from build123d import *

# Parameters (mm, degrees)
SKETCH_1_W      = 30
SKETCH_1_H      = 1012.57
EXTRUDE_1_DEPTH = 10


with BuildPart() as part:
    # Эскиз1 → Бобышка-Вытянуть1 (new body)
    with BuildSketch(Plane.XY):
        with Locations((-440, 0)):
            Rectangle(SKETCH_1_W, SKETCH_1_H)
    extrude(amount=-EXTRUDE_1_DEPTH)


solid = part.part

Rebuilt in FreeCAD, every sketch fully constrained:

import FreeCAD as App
import Part
import Sketcher

doc = App.newDocument("Part")
body = doc.addObject("PartDesign::Body", "Body")

# Sketch on XY plane
sketch1 = body.newObject("Sketcher::SketchObject", "Sketch")
sketch1.AttachmentSupport = (doc.getObject("XY_Plane"), [""])
sketch1.MapMode = "FlatFace"
sketch1.addGeometry([
    Part.LineSegment(App.Vector(-455, 506, 0), App.Vector(-455, -506, 0)),
    Part.LineSegment(App.Vector(-455, -506, 0), App.Vector(-425, -506, 0)),
    Part.LineSegment(App.Vector(-425, -506, 0), App.Vector(-425, 506, 0)),
    Part.LineSegment(App.Vector(-425, 506, 0), App.Vector(-455, 506, 0)),
], False)
sketch1.addConstraint([
    Sketcher.Constraint("Coincident", 0, 2, 1, 1),
    Sketcher.Constraint("Coincident", 1, 2, 2, 1),
    Sketcher.Constraint("Coincident", 2, 2, 3, 1),
    Sketcher.Constraint("Coincident", 3, 2, 0, 1),
    Sketcher.Constraint("Vertical", 0),
    Sketcher.Constraint("Horizontal", 1),
    Sketcher.Constraint("Vertical", 2),
    Sketcher.Constraint("Horizontal", 3),
    Sketcher.Constraint("DistanceX", 1, 1, 1, 2, 30.0),
    Sketcher.Constraint("DistanceX", 0, 2, -1, 1, 455.0),
    Sketcher.Constraint("DistanceY", 0, 2, 0, 1, 1012.57),
    Sketcher.Constraint("DistanceY", 0, 2, -1, 1, 506.285),
])
pad1 = body.newObject("PartDesign::Pad", "Pad")
pad1.Profile = sketch1
pad1.Length = 10
pad1.Reversed = True

doc.recompute()
